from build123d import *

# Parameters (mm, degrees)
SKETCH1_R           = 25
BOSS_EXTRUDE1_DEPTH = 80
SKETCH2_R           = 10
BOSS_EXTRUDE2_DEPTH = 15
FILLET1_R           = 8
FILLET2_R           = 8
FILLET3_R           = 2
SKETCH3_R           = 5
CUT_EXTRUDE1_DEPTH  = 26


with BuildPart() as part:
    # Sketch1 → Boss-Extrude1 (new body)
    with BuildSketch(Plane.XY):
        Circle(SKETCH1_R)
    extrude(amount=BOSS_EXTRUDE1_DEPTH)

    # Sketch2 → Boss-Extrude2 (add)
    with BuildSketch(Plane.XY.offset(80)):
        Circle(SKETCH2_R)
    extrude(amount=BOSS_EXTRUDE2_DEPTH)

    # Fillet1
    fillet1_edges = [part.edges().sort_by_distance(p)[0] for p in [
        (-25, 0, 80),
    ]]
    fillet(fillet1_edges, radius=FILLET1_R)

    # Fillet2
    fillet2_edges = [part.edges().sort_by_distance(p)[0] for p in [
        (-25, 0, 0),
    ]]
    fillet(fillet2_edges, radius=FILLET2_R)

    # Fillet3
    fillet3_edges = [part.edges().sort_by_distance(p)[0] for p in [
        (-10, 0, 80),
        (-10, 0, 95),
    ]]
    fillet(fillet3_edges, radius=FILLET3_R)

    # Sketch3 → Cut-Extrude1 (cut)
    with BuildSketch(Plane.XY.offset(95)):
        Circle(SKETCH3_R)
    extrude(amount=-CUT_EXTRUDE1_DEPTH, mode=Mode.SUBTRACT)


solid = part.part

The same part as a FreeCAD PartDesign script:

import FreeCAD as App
import Part
import Sketcher

V = App.Vector
Q = App.Units.Quantity


def edges_at(feature, points):
    """Names of the edges that pass closest to the given points."""
    edges = feature.Shape.Edges
    near = lambda p: min(range(len(edges)), key=lambda i: edges[i].distToShape(Part.Vertex(*p))[0])
    return sorted({f"Edge{near(p) + 1}" for p in points})

doc = App.newDocument("Part")
body = doc.addObject("PartDesign::Body", "Body")

sketch1 = body.newObject("Sketcher::SketchObject", "Sketch")
sketch1.AttachmentSupport = (doc.getObject("XY_Plane"), [""])
sketch1.MapMode = "FlatFace"
sketch1.addGeometry(Part.Circle(V(0, 0, 0), V(0, 0, 1), 25), False)
sketch1.addConstraint([
    Sketcher.Constraint("Coincident", 0, 3, -1, 1),
    Sketcher.Constraint("Diameter", 0, Q("50 mm")),
])
pad1 = body.newObject("PartDesign::Pad", "Pad")
pad1.Profile = sketch1
pad1.Length = 80

sketch2 = body.newObject("Sketcher::SketchObject", "Sketch001")
sketch2.AttachmentSupport = (doc.getObject("XY_Plane"), [""])
sketch2.MapMode = "FlatFace"
sketch2.AttachmentOffset = App.Placement(V(0, 0, 80), App.Rotation())
sketch2.addGeometry(Part.Circle(V(0, 0, 0), V(0, 0, 1), 10), False)
sketch2.addConstraint([
    Sketcher.Constraint("Coincident", 0, 3, -1, 1),
    Sketcher.Constraint("Diameter", 0, Q("20 mm")),
])
pad2 = body.newObject("PartDesign::Pad", "Pad001")
pad2.Profile = sketch2
pad2.Length = 15
doc.recompute()

fillet = body.newObject("PartDesign::Fillet", "Fillet")
fillet.Base = (pad2, edges_at(pad2, [(-25, 0, 80)]))
fillet.Radius = 8
doc.recompute()

fillet2 = body.newObject("PartDesign::Fillet", "Fillet001")
fillet2.Base = (fillet, edges_at(fillet, [(-25, 0, 0)]))
fillet2.Radius = 8
doc.recompute()

fillet3 = body.newObject("PartDesign::Fillet", "Fillet002")
fillet3.Base = (fillet2, edges_at(fillet2, [(-10, 0, 80), (-10, 0, 95)]))
fillet3.Radius = 2

sketch3 = body.newObject("Sketcher::SketchObject", "Sketch002")
sketch3.AttachmentSupport = (doc.getObject("XY_Plane"), [""])
sketch3.MapMode = "FlatFace"
sketch3.AttachmentOffset = App.Placement(V(0, 0, 95), App.Rotation())
sketch3.addGeometry(Part.Circle(V(0, 0, 0), V(0, 0, 1), 5), False)
sketch3.addConstraint([
    Sketcher.Constraint("Coincident", 0, 3, -1, 1),
    Sketcher.Constraint("Diameter", 0, Q("10 mm")),
])
pocket1 = body.newObject("PartDesign::Pocket", "Pocket")
pocket1.Profile = sketch3
pocket1.Length = 26

doc.recompute()
